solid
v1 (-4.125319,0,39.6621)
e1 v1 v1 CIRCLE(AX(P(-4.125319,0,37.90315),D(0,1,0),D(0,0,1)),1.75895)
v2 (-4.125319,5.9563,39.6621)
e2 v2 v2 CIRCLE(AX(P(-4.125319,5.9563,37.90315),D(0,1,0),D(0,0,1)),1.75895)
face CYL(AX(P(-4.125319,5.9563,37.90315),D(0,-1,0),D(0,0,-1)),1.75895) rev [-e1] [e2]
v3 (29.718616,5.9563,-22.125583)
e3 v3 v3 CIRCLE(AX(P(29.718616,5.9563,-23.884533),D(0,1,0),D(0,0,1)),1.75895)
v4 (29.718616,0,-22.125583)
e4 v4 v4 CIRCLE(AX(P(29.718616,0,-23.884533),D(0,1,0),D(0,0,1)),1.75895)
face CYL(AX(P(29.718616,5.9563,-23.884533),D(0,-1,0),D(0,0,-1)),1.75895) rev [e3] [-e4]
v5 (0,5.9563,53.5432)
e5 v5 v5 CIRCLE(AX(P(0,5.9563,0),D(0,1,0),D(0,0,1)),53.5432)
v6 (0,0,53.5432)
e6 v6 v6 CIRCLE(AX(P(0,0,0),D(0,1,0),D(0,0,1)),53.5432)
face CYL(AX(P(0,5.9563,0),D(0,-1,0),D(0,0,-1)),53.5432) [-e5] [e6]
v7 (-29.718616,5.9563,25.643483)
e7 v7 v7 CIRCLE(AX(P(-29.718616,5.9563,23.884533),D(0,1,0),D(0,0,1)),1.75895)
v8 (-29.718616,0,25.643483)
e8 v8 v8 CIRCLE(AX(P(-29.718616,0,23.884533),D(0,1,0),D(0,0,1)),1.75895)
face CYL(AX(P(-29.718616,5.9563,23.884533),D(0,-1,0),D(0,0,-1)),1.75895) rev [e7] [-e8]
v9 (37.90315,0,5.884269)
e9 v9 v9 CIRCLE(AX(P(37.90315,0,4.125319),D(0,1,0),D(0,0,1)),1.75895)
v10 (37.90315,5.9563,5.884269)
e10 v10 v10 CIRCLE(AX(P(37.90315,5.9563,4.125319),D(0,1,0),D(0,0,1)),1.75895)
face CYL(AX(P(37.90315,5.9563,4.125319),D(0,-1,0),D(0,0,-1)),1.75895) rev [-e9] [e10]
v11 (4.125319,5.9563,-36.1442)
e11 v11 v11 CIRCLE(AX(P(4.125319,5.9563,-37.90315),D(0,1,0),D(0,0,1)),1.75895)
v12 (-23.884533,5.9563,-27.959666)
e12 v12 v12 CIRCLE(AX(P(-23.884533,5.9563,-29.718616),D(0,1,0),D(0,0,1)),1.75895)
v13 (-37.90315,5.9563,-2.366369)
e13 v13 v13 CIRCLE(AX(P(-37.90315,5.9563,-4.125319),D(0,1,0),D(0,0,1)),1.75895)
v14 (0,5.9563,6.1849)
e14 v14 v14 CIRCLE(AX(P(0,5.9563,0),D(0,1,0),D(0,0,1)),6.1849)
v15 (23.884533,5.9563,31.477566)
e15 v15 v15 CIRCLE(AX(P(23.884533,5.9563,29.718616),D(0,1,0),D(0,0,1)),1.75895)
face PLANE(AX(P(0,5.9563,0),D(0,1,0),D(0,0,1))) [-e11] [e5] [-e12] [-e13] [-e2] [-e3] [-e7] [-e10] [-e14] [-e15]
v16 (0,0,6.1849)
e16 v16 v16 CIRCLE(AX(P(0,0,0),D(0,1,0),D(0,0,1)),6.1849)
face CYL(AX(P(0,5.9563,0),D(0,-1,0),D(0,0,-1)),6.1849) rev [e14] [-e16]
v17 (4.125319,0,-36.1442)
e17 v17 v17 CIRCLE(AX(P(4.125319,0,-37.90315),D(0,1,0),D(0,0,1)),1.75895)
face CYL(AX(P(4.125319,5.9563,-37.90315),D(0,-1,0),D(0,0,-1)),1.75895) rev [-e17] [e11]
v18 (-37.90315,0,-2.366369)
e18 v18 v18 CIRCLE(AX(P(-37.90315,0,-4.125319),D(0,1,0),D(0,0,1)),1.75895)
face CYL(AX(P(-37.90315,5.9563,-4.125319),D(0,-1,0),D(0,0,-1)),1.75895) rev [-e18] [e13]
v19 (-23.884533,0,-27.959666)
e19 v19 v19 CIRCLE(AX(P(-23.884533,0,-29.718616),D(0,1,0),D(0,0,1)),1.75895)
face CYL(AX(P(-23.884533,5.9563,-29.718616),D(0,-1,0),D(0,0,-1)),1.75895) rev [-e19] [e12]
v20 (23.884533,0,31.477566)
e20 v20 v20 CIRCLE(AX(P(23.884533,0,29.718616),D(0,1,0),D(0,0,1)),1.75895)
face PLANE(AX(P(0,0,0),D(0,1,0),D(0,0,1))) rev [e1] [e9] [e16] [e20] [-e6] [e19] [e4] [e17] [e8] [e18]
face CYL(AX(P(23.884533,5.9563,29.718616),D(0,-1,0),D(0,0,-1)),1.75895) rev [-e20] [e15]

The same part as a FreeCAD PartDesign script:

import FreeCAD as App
import Part
import Sketcher
Q = App.Units.Quantity

doc = App.newDocument("Part")
body = doc.addObject("PartDesign::Body", "Body")

# Sketch on XZ plane
sketch1 = body.newObject("Sketcher::SketchObject", "Sketch")
sketch1.AttachmentSupport = (doc.getObject("XZ_Plane"), [""])
sketch1.MapMode = "FlatFace"
sketch1.addGeometry([
    Part.Circle(App.Vector(0, 0, 0), App.Vector(0, 0, 1), 53.5432),  # 0
    Part.Circle(App.Vector(-29.718616, 23.884533, 0), App.Vector(0, 0, 1), 1.75895),  # 1
    Part.Circle(App.Vector(-4.125319, 37.90315, 0), App.Vector(0, 0, 1), 1.75895),  # 2
    Part.Circle(App.Vector(23.884533, 29.718616, 0), App.Vector(0, 0, 1), 1.75895),  # 3
    Part.Circle(App.Vector(37.90315, 4.125319, 0), App.Vector(0, 0, 1), 1.75895),  # 4
    Part.Circle(App.Vector(-37.90315, -4.125319, 0), App.Vector(0, 0, 1), 1.75895),  # 5
    Part.Circle(App.Vector(-23.884533, -29.718616, 0), App.Vector(0, 0, 1), 1.75895),  # 6
    Part.Circle(App.Vector(0, 0, 0), App.Vector(0, 0, 1), 6.1849),  # 7
    Part.Circle(App.Vector(4.125319, -37.90315, 0), App.Vector(0, 0, 1), 1.75895),  # 8
    Part.Circle(App.Vector(29.718616, -23.884533, 0), App.Vector(0, 0, 1), 1.75895),  # 9
], False)
sketch1.addConstraint([
    Sketcher.Constraint("Coincident", 0, 3, -1, 1),
    Sketcher.Constraint("Coincident", 7, 3, -1, 1),
    Sketcher.Constraint("Equal", 1, 2),
    Sketcher.Constraint("Equal", 2, 3),
    Sketcher.Constraint("Equal", 3, 4),
    Sketcher.Constraint("Equal", 4, 5),
    Sketcher.Constraint("Equal", 5, 6),
    Sketcher.Constraint("Equal", 6, 8),
    Sketcher.Constraint("Equal", 8, 9),
    Sketcher.Constraint("Symmetric", 4, 3, 5, 3, -1, 1),
    Sketcher.Constraint("Symmetric", 3, 3, 6, 3, -1, 1),
    Sketcher.Constraint("Symmetric", 2, 3, 8, 3, -1, 1),
    Sketcher.Constraint("Symmetric", 1, 3, 9, 3, -1, 1),
    Sketcher.Constraint("Diameter", 0, Q("4.216 in")),
    Sketcher.Constraint("Diameter", 7, Q("0.487 in")),
    Sketcher.Constraint("Diameter", 1, Q("0.1385 in")),
    Sketcher.Constraint("DistanceX", 5, 3, 4, 3, Q("2.9845 in")),
    Sketcher.Constraint("DistanceX", 2, 3, -1, 1, 4.125319),
    Sketcher.Constraint("DistanceY", -1, 1, 2, 3, 37.90315),
    Sketcher.Constraint("DistanceY", -1, 1, 4, 3, 4.125319),
    Sketcher.Constraint("DistanceX", 1, 3, 3, 3, 53.603149),
    Sketcher.Constraint("DistanceY", 6, 3, 1, 3, 53.603149),
    Sketcher.Constraint("DistanceX", 1, 3, -1, 1, 29.718616),
    Sketcher.Constraint("DistanceY", -1, 1, 1, 3, 23.884533),
])
pad1 = body.newObject("PartDesign::Pad", "Pad")
pad1.Profile = sketch1
pad1.Length = Q("0.2345 in")
pad1.Reversed = True

doc.recompute()
